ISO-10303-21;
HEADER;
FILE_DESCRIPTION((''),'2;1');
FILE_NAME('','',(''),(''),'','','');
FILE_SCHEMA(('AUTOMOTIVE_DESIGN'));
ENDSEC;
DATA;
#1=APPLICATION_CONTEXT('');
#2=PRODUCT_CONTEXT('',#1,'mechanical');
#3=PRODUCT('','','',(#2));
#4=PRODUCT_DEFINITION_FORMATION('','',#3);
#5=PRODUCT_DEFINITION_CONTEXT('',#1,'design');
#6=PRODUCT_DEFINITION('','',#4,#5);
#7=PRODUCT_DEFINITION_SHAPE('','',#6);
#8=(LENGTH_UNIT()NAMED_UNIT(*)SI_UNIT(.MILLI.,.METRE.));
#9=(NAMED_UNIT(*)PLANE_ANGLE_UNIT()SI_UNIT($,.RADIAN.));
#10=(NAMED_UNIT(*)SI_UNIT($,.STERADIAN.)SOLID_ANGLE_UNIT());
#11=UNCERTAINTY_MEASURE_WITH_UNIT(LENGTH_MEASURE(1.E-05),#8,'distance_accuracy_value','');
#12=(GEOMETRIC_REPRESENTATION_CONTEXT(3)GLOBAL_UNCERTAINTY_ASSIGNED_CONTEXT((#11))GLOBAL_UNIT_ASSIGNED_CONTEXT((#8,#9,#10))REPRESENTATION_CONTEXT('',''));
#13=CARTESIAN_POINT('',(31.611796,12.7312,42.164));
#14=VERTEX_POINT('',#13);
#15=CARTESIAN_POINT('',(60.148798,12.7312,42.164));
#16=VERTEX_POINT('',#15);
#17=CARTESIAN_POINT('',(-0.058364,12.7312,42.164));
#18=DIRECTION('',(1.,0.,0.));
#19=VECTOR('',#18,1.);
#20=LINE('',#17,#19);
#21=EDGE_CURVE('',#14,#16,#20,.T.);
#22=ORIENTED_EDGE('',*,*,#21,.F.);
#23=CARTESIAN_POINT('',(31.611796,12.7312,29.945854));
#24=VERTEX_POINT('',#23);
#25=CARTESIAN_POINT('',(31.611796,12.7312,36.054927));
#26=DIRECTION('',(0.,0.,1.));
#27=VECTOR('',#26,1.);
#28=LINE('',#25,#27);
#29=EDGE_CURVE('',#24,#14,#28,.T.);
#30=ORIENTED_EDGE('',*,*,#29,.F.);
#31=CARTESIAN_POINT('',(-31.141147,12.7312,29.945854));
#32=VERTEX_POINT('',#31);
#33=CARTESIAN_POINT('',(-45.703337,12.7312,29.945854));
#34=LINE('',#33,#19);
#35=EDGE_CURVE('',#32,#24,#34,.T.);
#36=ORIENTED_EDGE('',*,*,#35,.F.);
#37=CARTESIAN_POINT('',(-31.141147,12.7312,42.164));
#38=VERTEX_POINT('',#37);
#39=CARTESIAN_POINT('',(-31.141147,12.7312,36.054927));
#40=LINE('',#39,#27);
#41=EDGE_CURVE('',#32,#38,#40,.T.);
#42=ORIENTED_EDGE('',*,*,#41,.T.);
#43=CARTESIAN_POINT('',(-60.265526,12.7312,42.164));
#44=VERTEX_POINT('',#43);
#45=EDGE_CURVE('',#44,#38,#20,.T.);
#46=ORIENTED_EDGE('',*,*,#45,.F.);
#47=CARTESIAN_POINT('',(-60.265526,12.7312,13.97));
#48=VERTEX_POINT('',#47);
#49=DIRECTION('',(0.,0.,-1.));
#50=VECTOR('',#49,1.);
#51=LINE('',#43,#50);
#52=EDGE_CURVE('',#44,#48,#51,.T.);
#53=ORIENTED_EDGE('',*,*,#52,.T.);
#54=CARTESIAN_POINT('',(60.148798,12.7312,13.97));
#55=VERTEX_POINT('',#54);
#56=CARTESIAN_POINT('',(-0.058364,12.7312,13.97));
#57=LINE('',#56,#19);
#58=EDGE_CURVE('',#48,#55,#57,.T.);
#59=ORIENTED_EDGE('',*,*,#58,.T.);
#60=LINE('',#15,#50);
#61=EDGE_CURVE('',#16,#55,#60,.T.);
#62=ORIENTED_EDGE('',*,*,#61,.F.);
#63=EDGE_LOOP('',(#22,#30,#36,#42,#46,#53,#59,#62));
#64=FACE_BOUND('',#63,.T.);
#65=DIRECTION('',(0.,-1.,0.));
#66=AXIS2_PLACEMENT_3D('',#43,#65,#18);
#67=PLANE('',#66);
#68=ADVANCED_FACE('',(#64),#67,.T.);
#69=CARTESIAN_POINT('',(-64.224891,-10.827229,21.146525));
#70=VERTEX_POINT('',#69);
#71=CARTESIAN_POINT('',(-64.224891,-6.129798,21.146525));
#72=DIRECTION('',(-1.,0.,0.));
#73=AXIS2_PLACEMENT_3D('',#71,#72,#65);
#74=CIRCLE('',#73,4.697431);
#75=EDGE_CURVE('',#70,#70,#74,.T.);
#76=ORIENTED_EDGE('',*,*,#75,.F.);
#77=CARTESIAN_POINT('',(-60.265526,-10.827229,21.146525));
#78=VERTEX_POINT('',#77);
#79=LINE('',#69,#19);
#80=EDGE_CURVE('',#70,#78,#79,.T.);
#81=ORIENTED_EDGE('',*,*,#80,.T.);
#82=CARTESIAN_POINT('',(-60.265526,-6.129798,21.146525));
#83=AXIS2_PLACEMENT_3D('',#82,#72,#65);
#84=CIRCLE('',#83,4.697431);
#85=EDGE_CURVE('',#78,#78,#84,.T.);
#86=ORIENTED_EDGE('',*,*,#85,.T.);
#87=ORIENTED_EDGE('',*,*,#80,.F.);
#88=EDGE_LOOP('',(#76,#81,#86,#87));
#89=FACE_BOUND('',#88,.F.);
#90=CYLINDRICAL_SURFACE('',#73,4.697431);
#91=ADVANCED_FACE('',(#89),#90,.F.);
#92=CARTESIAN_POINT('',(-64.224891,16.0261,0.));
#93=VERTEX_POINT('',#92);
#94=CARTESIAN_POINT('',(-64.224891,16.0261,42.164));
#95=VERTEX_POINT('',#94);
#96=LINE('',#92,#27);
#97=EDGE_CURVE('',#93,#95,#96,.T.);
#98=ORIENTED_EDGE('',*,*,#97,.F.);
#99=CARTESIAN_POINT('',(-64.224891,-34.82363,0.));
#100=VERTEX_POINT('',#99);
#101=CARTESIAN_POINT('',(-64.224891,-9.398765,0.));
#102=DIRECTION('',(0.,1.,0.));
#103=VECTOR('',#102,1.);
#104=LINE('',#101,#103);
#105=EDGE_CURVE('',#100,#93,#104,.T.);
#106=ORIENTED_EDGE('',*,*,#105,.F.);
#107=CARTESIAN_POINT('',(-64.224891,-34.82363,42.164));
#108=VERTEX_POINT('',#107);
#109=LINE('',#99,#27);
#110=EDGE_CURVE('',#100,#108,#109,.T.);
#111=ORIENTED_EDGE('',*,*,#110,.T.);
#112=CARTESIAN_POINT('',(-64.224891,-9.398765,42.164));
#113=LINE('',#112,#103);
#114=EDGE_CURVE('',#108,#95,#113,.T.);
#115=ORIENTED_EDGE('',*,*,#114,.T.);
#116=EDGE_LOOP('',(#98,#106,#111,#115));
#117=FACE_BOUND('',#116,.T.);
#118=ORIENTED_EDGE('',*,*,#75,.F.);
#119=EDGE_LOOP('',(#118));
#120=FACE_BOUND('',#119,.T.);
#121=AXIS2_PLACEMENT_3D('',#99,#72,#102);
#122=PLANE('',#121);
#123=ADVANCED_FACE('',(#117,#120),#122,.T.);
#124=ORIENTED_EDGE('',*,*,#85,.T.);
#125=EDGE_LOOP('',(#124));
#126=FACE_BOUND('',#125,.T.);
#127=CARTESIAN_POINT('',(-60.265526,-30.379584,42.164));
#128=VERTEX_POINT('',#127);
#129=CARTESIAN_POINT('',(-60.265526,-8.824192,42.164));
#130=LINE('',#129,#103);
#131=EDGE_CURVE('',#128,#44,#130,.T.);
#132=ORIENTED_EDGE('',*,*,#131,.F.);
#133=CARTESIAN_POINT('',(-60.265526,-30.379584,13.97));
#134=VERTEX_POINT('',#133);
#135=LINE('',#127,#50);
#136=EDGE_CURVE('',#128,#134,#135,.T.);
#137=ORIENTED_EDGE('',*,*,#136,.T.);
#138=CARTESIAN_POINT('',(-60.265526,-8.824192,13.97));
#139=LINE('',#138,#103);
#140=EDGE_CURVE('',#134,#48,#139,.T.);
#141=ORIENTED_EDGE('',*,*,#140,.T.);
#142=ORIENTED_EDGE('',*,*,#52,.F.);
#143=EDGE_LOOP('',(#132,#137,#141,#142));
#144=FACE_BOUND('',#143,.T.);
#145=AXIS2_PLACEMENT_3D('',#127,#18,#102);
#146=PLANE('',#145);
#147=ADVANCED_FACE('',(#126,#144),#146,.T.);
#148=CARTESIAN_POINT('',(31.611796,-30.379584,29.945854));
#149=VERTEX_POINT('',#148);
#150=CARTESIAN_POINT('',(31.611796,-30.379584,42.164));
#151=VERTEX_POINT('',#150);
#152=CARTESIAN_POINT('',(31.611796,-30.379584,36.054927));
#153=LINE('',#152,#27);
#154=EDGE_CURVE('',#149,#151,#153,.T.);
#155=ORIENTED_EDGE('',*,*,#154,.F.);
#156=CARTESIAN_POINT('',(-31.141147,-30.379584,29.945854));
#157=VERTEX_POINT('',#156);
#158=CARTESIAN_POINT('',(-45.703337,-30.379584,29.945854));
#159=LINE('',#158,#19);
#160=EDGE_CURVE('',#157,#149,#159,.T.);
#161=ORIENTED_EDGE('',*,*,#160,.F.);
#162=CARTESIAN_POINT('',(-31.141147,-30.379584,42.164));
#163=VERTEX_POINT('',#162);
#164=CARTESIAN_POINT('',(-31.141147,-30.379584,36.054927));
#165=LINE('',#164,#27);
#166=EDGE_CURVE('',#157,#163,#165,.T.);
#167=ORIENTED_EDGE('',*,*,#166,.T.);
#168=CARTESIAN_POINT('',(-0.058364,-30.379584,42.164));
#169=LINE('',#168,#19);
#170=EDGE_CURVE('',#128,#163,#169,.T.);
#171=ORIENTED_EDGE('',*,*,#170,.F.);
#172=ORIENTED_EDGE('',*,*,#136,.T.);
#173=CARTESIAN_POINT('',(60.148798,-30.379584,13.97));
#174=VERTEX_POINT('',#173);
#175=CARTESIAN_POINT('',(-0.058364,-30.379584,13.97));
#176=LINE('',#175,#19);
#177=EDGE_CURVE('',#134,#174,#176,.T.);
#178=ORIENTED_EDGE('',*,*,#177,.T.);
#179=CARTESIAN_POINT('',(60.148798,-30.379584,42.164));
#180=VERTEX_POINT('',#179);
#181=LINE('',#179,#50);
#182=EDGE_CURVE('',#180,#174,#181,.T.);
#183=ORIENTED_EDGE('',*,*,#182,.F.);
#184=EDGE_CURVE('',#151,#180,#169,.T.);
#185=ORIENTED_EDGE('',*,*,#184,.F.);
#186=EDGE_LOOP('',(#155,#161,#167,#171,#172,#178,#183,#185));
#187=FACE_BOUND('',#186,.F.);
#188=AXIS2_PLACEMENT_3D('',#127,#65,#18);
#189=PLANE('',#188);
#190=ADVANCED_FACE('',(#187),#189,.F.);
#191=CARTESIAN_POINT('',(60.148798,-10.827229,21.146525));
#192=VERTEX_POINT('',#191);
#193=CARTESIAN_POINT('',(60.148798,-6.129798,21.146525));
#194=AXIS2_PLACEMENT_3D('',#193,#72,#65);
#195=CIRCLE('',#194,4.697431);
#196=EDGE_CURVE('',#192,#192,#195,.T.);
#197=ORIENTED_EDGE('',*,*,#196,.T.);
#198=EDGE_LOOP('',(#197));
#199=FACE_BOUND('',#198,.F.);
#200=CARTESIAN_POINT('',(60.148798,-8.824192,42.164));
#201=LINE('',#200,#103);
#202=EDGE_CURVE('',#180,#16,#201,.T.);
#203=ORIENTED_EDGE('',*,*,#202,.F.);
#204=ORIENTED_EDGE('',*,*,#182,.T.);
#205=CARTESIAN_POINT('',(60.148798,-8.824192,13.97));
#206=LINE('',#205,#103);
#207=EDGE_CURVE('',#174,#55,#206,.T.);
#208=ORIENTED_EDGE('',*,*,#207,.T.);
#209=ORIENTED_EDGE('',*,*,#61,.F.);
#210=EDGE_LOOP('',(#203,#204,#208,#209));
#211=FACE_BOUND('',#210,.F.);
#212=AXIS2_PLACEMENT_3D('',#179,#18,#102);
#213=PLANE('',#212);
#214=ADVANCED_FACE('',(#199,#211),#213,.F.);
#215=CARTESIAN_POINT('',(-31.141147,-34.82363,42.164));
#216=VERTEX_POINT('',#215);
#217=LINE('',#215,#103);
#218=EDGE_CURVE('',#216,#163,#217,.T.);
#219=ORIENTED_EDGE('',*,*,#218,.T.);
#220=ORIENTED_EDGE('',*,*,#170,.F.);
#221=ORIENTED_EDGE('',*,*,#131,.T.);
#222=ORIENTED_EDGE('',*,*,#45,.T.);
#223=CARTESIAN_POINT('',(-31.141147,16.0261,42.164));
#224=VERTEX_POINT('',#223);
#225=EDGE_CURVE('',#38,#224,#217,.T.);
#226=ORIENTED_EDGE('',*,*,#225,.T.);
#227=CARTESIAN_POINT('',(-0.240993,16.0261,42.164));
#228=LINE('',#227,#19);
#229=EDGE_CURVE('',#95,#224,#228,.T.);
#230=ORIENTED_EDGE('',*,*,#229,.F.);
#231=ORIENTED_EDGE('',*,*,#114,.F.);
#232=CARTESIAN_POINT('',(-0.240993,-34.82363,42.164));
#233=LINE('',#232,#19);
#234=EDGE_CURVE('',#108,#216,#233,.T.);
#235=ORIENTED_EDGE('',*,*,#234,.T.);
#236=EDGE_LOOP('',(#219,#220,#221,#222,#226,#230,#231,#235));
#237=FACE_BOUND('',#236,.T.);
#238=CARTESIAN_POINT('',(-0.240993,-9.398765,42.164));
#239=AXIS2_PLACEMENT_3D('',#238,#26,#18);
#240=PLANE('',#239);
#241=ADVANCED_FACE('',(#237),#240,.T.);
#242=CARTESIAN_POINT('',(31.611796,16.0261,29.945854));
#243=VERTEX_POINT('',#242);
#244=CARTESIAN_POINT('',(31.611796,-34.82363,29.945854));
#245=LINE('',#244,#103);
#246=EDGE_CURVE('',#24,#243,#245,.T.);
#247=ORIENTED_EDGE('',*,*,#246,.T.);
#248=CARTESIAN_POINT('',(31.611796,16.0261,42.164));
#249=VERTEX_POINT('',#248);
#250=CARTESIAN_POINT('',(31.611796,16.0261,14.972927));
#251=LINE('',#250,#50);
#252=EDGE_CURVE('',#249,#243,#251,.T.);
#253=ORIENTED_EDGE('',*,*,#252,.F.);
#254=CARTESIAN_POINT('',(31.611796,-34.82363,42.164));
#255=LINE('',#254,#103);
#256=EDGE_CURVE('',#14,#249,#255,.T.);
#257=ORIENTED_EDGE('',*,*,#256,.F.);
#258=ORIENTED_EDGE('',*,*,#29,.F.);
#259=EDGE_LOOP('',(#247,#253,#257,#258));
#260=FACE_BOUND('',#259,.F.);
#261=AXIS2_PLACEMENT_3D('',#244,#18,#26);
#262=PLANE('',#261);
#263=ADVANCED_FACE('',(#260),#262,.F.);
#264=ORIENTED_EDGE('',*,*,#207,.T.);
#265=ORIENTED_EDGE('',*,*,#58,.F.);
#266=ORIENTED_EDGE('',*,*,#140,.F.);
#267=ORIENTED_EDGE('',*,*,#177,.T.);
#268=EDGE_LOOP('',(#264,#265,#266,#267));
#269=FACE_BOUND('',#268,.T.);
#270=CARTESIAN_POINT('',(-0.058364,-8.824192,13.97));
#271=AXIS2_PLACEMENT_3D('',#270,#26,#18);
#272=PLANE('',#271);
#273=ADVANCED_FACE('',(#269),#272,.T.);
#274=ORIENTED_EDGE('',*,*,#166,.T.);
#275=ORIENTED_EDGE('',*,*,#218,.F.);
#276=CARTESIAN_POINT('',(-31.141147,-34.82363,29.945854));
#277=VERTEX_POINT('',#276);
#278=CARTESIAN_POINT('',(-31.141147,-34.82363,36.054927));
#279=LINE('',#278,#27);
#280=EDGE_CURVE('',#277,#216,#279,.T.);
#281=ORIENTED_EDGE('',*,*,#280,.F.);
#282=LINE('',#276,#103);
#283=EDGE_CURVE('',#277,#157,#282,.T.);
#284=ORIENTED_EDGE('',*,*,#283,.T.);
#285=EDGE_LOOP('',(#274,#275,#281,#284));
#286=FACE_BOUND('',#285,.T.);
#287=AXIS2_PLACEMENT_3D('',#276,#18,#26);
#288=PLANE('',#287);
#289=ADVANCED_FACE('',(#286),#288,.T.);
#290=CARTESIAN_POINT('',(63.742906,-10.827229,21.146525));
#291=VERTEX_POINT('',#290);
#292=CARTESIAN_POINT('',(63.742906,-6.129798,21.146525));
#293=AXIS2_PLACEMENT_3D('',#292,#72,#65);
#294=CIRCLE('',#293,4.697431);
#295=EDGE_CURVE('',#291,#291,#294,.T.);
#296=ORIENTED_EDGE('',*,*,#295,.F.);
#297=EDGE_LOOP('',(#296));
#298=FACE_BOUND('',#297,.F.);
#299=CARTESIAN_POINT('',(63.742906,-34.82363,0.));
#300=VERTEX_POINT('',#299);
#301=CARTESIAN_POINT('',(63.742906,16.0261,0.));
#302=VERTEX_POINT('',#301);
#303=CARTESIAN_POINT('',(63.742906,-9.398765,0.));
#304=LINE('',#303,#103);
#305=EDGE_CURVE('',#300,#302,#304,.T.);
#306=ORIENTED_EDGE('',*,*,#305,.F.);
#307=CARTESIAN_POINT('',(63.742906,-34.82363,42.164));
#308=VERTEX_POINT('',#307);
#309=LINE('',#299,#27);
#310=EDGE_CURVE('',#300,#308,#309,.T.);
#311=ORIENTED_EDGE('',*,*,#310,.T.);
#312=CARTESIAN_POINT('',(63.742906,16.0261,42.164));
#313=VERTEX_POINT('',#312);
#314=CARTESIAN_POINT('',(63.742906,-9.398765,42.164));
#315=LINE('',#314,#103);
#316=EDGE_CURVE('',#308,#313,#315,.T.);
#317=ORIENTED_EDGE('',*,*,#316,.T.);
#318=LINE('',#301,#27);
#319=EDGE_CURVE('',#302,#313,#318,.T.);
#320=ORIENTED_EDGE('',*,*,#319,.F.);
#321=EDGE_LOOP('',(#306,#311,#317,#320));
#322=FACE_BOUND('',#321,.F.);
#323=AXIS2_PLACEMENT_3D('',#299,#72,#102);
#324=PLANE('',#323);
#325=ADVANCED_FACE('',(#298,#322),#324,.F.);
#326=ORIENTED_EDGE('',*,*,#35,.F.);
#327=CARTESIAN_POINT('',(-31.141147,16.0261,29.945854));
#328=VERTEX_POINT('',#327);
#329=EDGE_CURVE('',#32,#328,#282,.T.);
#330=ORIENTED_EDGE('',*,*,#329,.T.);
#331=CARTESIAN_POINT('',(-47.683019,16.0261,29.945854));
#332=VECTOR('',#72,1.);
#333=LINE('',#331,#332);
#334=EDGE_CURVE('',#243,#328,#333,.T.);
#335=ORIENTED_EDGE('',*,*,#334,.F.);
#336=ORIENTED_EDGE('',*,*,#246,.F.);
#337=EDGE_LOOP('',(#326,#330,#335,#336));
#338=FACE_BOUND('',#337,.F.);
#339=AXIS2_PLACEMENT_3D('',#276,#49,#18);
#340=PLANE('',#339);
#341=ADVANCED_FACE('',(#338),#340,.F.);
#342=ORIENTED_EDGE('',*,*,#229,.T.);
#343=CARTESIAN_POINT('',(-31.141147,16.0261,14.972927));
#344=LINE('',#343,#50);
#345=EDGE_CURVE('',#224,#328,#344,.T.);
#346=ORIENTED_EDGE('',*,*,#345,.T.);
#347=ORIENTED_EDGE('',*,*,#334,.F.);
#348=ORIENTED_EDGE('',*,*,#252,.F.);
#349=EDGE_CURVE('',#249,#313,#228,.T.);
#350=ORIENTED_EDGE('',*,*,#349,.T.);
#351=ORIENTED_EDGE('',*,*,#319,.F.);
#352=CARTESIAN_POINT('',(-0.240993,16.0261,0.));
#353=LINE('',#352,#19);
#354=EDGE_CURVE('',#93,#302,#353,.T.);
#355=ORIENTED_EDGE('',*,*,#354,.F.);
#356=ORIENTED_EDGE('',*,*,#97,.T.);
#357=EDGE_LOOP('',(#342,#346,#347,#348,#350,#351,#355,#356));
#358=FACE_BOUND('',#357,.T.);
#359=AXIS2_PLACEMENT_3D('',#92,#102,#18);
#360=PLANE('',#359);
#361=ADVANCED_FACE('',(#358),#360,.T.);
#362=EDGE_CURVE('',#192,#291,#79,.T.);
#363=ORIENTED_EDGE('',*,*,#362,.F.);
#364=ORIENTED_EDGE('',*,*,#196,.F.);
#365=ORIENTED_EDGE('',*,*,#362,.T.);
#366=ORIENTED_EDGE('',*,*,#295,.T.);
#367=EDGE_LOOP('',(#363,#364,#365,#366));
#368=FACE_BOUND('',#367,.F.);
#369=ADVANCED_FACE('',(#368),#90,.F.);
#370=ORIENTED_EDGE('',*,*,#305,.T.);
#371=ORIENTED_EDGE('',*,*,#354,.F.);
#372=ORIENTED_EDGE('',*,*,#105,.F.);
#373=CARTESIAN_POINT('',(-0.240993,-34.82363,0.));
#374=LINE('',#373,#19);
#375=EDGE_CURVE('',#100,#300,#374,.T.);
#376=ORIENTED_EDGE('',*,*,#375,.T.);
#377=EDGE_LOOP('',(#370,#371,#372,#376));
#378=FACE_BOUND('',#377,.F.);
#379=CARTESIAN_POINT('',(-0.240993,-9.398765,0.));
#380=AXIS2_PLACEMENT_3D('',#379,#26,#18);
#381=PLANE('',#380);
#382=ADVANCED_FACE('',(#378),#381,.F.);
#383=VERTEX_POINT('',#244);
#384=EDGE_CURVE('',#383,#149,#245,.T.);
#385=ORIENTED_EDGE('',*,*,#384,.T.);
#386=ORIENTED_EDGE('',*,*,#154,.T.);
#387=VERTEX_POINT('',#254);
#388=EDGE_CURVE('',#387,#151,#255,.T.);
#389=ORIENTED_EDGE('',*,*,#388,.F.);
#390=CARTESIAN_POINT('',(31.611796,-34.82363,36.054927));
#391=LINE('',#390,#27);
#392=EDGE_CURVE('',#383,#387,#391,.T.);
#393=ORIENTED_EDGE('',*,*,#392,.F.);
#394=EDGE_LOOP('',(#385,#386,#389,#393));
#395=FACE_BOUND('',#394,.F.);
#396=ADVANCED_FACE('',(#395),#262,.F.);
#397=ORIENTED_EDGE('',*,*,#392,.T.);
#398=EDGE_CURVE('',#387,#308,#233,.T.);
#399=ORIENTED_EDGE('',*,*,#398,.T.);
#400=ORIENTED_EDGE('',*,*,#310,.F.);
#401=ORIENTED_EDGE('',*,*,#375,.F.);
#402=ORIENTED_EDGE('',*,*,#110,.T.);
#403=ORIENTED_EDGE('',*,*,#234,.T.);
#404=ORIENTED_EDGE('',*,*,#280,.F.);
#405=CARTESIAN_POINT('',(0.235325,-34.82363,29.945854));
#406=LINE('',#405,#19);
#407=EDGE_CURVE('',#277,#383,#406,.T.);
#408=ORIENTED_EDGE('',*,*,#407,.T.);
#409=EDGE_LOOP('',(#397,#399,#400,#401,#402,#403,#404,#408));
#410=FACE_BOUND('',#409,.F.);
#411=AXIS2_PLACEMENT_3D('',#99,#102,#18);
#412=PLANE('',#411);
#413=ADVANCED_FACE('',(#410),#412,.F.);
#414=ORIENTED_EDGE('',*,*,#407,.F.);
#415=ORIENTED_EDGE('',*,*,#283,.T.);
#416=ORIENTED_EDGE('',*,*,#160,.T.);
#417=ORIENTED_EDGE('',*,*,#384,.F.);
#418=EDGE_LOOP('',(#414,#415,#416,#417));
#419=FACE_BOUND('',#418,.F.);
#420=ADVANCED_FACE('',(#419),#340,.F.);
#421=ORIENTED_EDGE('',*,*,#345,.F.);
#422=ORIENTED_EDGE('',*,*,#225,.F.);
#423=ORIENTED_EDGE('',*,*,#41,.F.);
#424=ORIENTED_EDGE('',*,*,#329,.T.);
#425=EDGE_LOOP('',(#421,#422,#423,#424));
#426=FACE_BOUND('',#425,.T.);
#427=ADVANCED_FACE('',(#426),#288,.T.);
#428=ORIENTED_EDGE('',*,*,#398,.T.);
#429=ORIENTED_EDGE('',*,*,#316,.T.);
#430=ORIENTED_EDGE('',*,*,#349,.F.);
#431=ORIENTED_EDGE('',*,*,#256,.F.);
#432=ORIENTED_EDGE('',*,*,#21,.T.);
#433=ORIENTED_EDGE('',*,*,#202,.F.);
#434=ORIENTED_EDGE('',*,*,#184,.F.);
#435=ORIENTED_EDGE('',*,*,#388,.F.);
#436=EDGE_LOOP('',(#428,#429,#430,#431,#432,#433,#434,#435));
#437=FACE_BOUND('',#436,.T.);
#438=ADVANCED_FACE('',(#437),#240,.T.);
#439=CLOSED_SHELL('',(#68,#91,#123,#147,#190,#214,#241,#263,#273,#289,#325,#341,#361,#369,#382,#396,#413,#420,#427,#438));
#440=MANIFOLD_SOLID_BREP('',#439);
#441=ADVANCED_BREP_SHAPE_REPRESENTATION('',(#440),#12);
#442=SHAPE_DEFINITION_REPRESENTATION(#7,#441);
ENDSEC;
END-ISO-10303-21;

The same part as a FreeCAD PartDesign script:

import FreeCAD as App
import Part
import Sketcher
from FreeCAD import Vector
Q = App.Units.Quantity

doc = App.newDocument("Part")
body = doc.addObject("PartDesign::Body", "Body")

# Sketch on XY plane
sketch1 = doc.addObject("Sketcher::SketchObject", "Sketch")
body.addObject(sketch1)
sketch1.AttachmentSupport = (doc.XY_Plane, [""])
sketch1.MapMode = "FlatFace"
sketch1.addGeometry(Part.LineSegment(Vector(-64, 16, 0), Vector(-64, -35, 0)), False)
sketch1.addGeometry(Part.LineSegment(Vector(-64, -35, 0), Vector(64, -35, 0)), False)
sketch1.addGeometry(Part.LineSegment(Vector(64, -35, 0), Vector(64, 16, 0)), False)
sketch1.addGeometry(Part.LineSegment(Vector(64, 16, 0), Vector(-64, 16, 0)), False)
sketch1.addConstraint(Sketcher.Constraint("Coincident", 0, 2, 1, 1))
sketch1.addConstraint(Sketcher.Constraint("Coincident", 1, 2, 2, 1))
sketch1.addConstraint(Sketcher.Constraint("Coincident", 2, 2, 3, 1))
sketch1.addConstraint(Sketcher.Constraint("Coincident", 3, 2, 0, 1))
sketch1.addConstraint(Sketcher.Constraint("Vertical", 0))
sketch1.addConstraint(Sketcher.Constraint("Horizontal", 1))
sketch1.addConstraint(Sketcher.Constraint("Vertical", 2))
sketch1.addConstraint(Sketcher.Constraint("Horizontal", 3))
sketch1.addConstraint(Sketcher.Constraint("DistanceY", 0, 2, 0, 1, Q("50.84973 mm")))
sketch1.addConstraint(Sketcher.Constraint("DistanceY", -1, 1, 2, 2, Q("16.0261 mm")))
sketch1.addConstraint(Sketcher.Constraint("DistanceX", 1, 1, 1, 2, Q("127.967797 mm")))
sketch1.addConstraint(Sketcher.Constraint("DistanceX", 0, 2, -1, 1, Q("64.224891 mm")))
pad1 = doc.addObject("PartDesign::Pad", "Pad")
body.addObject(pad1)
pad1.Profile = sketch1
pad1.Length = Q("1.66 in")

# Sketch on XY plane
sketch2 = doc.addObject("Sketcher::SketchObject", "Sketch001")
body.addObject(sketch2)
sketch2.AttachmentSupport = (doc.XY_Plane, [""])
sketch2.MapMode = "FlatFace"
sketch2.AttachmentOffset = App.Placement(Vector(0, 0, 1.66 * 25.4), App.Rotation())
sketch2.addGeometry(Part.LineSegment(Vector(-60, 13, 0), Vector(-60, -30, 0)), False)
sketch2.addGeometry(Part.LineSegment(Vector(-60, -30, 0), Vector(60, -30, 0)), False)
sketch2.addGeometry(Part.LineSegment(Vector(60, -30, 0), Vector(60, 13, 0)), False)
sketch2.addGeometry(Part.LineSegment(Vector(60, 13, 0), Vector(-60, 13, 0)), False)
sketch2.addConstraint(Sketcher.Constraint("Coincident", 0, 2, 1, 1))
sketch2.addConstraint(Sketcher.Constraint("Coincident", 1, 2, 2, 1))
sketch2.addConstraint(Sketcher.Constraint("Coincident", 2, 2, 3, 1))
sketch2.addConstraint(Sketcher.Constraint("Coincident", 3, 2, 0, 1))
sketch2.addConstraint(Sketcher.Constraint("Vertical", 0))
sketch2.addConstraint(Sketcher.Constraint("Horizontal", 1))
sketch2.addConstraint(Sketcher.Constraint("Vertical", 2))
sketch2.addConstraint(Sketcher.Constraint("Horizontal", 3))
sketch2.addConstraint(Sketcher.Constraint("DistanceY", -1, 1, 2, 2, Q("12.7312 mm")))
sketch2.addConstraint(Sketcher.Constraint("DistanceX", 1, 1, 1, 2, Q("120.414324 mm")))
sketch2.addConstraint(Sketcher.Constraint("DistanceY", 0, 2, 0, 1, Q("43.110784 mm")))
sketch2.addConstraint(Sketcher.Constraint("DistanceX", 0, 2, -1, 1, Q("60.265526 mm")))
pocket1 = doc.addObject("PartDesign::Pocket", "Pocket")
body.addObject(pocket1)
pocket1.Profile = sketch2
pocket1.Length = Q("1.11 in")

# Sketch on XZ plane
sketch3 = doc.addObject("Sketcher::SketchObject", "Sketch002")
body.addObject(sketch3)
sketch3.AttachmentSupport = (doc.XZ_Plane, [""])
sketch3.MapMode = "FlatFace"
sketch3.AttachmentOffset = App.Placement(Vector(0, 0, 34.82363), App.Rotation())
sketch3.addGeometry(Part.LineSegment(Vector(-31, 42, 0), Vector(-31, 30, 0)), False)
sketch3.addGeometry(Part.LineSegment(Vector(-31, 30, 0), Vector(32, 30, 0)), False)
sketch3.addGeometry(Part.LineSegment(Vector(32, 30, 0), Vector(32, 42, 0)), False)
sketch3.addGeometry(Part.LineSegment(Vector(32, 42, 0), Vector(-31, 42, 0)), False)
sketch3.addConstraint(Sketcher.Constraint("Coincident", 0, 2, 1, 1))
sketch3.addConstraint(Sketcher.Constraint("Coincident", 1, 2, 2, 1))
sketch3.addConstraint(Sketcher.Constraint("Coincident", 2, 2, 3, 1))
sketch3.addConstraint(Sketcher.Constraint("Coincident", 3, 2, 0, 1))
sketch3.addConstraint(Sketcher.Constraint("Vertical", 0))
sketch3.addConstraint(Sketcher.Constraint("Horizontal", 1))
sketch3.addConstraint(Sketcher.Constraint("Vertical", 2))
sketch3.addConstraint(Sketcher.Constraint("Horizontal", 3))
sketch3.addConstraint(Sketcher.Constraint("DistanceY", -1, 1, 2, 2, Q("1.66 in")))
sketch3.addConstraint(Sketcher.Constraint("DistanceX", 1, 1, 1, 2, Q("62.752943 mm")))
sketch3.addConstraint(Sketcher.Constraint("DistanceY", 0, 2, 0, 1, Q("12.218146 mm")))
sketch3.addConstraint(Sketcher.Constraint("DistanceX", 0, 2, -1, 1, Q("31.141147 mm")))
pocket2 = doc.addObject("PartDesign::Pocket", "Pocket001")
body.addObject(pocket2)
pocket2.Profile = sketch3
pocket2.Length = Q("2.42 in")

# Sketch on YZ plane
sketch4 = doc.addObject("Sketcher::SketchObject", "Sketch003")
body.addObject(sketch4)
sketch4.AttachmentSupport = (doc.YZ_Plane, [""])
sketch4.MapMode = "FlatFace"
sketch4.AttachmentOffset = App.Placement(Vector(0, 0, -64.224891), App.Rotation())
sketch4.addGeometry(Part.Circle(Vector(-6.1, 21.1, 0), Vector(0, 0, 1), 4.7), False)
sketch4.addConstraint(Sketcher.Constraint("Diameter", 0, Q("9.394862 mm")))
sketch4.addConstraint(Sketcher.Constraint("DistanceX", 0, 3, -1, 1, Q("6.129798 mm")))
sketch4.addConstraint(Sketcher.Constraint("DistanceY", -1, 1, 0, 3, Q("21.146525 mm")))
pocket3 = doc.addObject("PartDesign::Pocket", "Pocket002")
body.addObject(pocket3)
pocket3.Profile = sketch4
pocket3.Length = Q("6.87 in")
pocket3.Reversed = True

doc.recompute()
